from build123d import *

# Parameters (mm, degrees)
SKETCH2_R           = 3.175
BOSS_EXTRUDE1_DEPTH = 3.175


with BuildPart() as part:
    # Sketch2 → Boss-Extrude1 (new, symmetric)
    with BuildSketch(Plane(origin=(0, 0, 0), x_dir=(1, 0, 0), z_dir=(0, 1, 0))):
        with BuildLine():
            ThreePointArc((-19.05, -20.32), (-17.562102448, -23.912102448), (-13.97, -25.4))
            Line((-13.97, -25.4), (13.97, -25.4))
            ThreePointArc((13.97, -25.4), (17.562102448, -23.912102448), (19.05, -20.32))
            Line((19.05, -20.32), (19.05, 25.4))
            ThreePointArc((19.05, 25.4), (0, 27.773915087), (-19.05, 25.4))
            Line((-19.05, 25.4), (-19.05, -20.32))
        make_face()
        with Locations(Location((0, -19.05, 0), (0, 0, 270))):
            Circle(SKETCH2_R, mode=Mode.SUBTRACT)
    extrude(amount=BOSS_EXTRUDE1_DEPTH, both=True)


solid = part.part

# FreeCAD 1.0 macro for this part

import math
import FreeCAD as App
import Part
import Sketcher
from FreeCAD import Vector
Q = App.Units.Quantity

doc = App.newDocument("Part")
body = doc.addObject("PartDesign::Body", "Body")

sketch1 = body.newObject("Sketcher::SketchObject", "Sketch")
sketch1.AttachmentSupport = (doc.getObject("XZ_Plane"), [""])
sketch1.MapMode = "FlatFace"
sketch1.addGeometry(Part.ArcOfCircle(Part.Circle(Vector(-14, 20.3, 0), Vector(0, 0, 1), 5.1), math.radians(90), math.radians(180)), False)
sketch1.addGeometry(Part.LineSegment(Vector(-14, 25.4, 0), Vector(14, 25.4, 0)), False)
sketch1.addGeometry(Part.ArcOfCircle(Part.Circle(Vector(14, 20.3, 0), Vector(0, 0, 1), 5.1), math.radians(0), math.radians(90)), False)
sketch1.addGeometry(Part.LineSegment(Vector(19.1, 20.3, 0), Vector(19.1, -25.4, 0)), False)
sketch1.addGeometry(Part.ArcOfCircle(Part.Circle(Vector(0, 49.8, 0), Vector(0, 0, 1), 77.6), math.radians(-104), math.radians(-76)), False)
sketch1.addGeometry(Part.LineSegment(Vector(-19.1, -25.4, 0), Vector(-19.1, 20.3, 0)), False)
sketch1.addGeometry(Part.Circle(Vector(0, 19.1, 0), Vector(0, 0, 1), 3.2), False)
sketch1.addConstraint(Sketcher.Constraint("Tangent", 0, 1, 1, 1))
sketch1.addConstraint(Sketcher.Constraint("Tangent", 1, 2, 2, 2))
sketch1.addConstraint(Sketcher.Constraint("Tangent", 2, 1, 3, 1))
sketch1.addConstraint(Sketcher.Constraint("Coincident", 3, 2, 4, 2))
sketch1.addConstraint(Sketcher.Constraint("Coincident", 4, 1, 5, 1))
sketch1.addConstraint(Sketcher.Constraint("Tangent", 5, 2, 0, 2))
sketch1.addConstraint(Sketcher.Constraint("Horizontal", 1))
sketch1.addConstraint(Sketcher.Constraint("Vertical", 3))
sketch1.addConstraint(Sketcher.Constraint("Vertical", 5))
sketch1.addConstraint(Sketcher.Constraint("Equal", 0, 2))
sketch1.addConstraint(Sketcher.Constraint("Symmetric", 3, 2, 4, 1, -2))
sketch1.addConstraint(Sketcher.Constraint("PointOnObject", 6, 3, -2))
sketch1.addConstraint(Sketcher.Constraint("Radius", 0, Q("0.2 in")))
sketch1.addConstraint(Sketcher.Constraint("Diameter", 6, Q("0.25 in")))
sketch1.addConstraint(Sketcher.Constraint("DistanceX", 1, 1, 1, 2, Q("1.1 in")))
sketch1.addConstraint(Sketcher.Constraint("DistanceY", 3, 2, 3, 1, Q("1.8 in")))
sketch1.addConstraint(Sketcher.Constraint("DistanceY", -1, 1, 0, 1, Q("1 in")))
sketch1.addConstraint(Sketcher.Constraint("Radius", 4, Q("3.056 in")))
sketch1.addConstraint(Sketcher.Constraint("DistanceY", -1, 1, 6, 3, Q("0.75 in")))
pad1 = body.newObject("PartDesign::Pad", "Pad")
pad1.Profile = sketch1
pad1.Length = Q("0.25 in")
pad1.Midplane = True

doc.recompute()
